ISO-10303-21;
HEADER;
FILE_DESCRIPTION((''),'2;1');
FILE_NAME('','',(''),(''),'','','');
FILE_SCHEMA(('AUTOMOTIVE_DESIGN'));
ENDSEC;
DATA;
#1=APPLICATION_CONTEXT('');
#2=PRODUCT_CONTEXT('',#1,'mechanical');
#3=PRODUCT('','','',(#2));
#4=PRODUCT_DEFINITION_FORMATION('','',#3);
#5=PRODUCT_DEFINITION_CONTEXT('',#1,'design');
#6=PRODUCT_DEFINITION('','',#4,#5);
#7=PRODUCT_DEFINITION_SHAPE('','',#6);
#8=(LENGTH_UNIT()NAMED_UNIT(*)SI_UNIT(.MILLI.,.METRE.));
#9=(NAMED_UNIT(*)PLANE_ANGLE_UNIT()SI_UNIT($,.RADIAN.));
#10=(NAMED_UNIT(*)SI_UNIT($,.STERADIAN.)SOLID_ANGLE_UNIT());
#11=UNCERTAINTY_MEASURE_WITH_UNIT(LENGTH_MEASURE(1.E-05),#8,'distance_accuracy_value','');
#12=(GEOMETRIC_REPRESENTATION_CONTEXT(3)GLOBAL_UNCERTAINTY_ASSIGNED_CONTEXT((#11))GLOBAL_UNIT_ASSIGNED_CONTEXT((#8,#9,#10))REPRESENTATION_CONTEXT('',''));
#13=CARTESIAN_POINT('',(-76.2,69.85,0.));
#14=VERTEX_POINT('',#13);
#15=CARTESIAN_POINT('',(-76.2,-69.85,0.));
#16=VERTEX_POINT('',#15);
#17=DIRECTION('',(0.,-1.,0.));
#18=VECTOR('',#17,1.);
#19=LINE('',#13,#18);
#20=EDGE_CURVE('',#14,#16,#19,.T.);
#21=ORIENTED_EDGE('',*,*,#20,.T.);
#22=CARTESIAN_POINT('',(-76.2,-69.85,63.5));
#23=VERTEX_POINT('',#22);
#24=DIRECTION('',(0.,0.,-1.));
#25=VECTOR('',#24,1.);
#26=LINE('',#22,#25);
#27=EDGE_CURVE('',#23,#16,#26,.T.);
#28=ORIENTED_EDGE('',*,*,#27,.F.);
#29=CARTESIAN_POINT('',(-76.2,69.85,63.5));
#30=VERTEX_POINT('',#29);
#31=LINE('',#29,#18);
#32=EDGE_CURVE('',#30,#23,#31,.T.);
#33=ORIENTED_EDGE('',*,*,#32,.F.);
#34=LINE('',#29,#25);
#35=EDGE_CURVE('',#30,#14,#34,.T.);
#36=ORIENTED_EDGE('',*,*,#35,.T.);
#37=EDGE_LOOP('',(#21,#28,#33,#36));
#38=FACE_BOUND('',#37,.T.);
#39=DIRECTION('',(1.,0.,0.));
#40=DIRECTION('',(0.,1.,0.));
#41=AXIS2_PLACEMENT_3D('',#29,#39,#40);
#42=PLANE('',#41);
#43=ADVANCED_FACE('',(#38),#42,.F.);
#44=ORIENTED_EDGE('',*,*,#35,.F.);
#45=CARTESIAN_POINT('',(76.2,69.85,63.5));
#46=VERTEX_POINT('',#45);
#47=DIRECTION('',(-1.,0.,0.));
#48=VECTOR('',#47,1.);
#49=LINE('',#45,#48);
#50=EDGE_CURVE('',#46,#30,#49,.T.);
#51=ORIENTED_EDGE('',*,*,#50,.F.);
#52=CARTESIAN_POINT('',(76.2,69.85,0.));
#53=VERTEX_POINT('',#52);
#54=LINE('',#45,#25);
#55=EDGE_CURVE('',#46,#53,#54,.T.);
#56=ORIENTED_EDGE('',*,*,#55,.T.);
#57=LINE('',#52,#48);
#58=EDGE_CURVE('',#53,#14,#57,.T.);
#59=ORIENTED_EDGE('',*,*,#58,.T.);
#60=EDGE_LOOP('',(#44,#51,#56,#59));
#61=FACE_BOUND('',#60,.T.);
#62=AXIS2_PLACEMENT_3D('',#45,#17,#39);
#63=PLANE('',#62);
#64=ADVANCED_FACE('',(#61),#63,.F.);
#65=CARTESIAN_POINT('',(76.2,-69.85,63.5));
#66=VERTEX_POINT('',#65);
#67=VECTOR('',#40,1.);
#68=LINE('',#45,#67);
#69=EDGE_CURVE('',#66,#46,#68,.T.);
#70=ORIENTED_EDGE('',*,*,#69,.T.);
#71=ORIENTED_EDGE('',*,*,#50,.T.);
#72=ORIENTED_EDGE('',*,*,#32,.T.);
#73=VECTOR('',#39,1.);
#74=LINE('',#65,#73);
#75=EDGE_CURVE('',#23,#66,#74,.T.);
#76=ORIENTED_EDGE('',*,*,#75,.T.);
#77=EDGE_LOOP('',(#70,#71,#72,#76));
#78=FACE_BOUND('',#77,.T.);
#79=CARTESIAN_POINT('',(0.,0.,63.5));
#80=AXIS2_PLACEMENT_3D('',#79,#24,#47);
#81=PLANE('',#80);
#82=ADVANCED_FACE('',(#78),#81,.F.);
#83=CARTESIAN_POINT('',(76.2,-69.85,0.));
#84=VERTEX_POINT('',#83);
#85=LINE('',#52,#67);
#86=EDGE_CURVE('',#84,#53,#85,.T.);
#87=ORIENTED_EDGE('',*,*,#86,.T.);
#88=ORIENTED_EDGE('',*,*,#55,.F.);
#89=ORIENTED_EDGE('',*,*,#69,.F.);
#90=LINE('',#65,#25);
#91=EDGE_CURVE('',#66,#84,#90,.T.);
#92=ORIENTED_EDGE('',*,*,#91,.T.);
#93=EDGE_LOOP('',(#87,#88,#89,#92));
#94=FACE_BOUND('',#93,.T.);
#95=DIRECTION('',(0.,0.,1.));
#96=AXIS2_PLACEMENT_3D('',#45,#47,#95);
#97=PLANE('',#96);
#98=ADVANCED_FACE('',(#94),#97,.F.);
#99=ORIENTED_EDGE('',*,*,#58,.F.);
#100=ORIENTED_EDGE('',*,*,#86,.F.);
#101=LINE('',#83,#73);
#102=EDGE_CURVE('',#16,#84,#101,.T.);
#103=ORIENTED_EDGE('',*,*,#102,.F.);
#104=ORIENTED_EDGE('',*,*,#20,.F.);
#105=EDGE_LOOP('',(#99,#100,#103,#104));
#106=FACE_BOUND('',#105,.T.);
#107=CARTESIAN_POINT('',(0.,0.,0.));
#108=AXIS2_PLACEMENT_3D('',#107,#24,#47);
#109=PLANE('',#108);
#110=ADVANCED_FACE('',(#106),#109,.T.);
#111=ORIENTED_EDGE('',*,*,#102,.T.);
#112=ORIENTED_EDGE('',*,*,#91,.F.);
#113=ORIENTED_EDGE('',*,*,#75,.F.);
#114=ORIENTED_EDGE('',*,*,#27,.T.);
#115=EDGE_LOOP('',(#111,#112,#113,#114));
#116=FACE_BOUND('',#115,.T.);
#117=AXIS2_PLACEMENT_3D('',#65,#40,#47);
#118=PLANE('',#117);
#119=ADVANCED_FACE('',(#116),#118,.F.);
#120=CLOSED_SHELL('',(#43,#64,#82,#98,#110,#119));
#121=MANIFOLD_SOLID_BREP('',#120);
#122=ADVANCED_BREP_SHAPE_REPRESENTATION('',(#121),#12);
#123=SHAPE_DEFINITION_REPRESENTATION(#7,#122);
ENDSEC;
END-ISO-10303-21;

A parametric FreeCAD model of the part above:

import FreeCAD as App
import Part
import Sketcher
Q = App.Units.Quantity


def add_polygon(sketch, points):
    """Adds a closed chain of lines whose ends are joined by coincident constraints."""
    first, n = sketch.GeometryCount, len(points)
    for a, b in zip(points, points[1:] + points[:1]):
        sketch.addGeometry(Part.LineSegment(App.Vector(*a, 0), App.Vector(*b, 0)), False)
    for i in range(n):
        sketch.addConstraint(Sketcher.Constraint("Coincident", first + i, 2, first + (i + 1) % n, 1))

doc = App.newDocument("Part")
body = doc.addObject("PartDesign::Body", "Body")

# Sketch on XY plane
sketch1 = body.newObject("Sketcher::SketchObject", "Sketch")
sketch1.AttachmentSupport = (doc.getObject("XY_Plane"), [""])
sketch1.MapMode = "FlatFace"
add_polygon(sketch1, [(-76.2, 69.85), (-76.2, -69.85), (76.2, -69.85), (76.2, 69.85)])  # lines 0-3
sketch1.addConstraint(Sketcher.Constraint("Vertical", 0))
sketch1.addConstraint(Sketcher.Constraint("Horizontal", 1))
sketch1.addConstraint(Sketcher.Constraint("Vertical", 2))
sketch1.addConstraint(Sketcher.Constraint("Horizontal", 3))
sketch1.addConstraint(Sketcher.Constraint("Symmetric", 0, 2, 2, 2, -1, 1))
sketch1.addConstraint(Sketcher.Constraint("DistanceX", 1, 1, 1, 2, Q("6 in")))
sketch1.addConstraint(Sketcher.Constraint("DistanceY", 0, 2, 0, 1, Q("5.5 in")))
pad1 = body.newObject("PartDesign::Pad", "Pad")
pad1.Profile = sketch1
pad1.Length = Q("2.5 in")

doc.recompute()
